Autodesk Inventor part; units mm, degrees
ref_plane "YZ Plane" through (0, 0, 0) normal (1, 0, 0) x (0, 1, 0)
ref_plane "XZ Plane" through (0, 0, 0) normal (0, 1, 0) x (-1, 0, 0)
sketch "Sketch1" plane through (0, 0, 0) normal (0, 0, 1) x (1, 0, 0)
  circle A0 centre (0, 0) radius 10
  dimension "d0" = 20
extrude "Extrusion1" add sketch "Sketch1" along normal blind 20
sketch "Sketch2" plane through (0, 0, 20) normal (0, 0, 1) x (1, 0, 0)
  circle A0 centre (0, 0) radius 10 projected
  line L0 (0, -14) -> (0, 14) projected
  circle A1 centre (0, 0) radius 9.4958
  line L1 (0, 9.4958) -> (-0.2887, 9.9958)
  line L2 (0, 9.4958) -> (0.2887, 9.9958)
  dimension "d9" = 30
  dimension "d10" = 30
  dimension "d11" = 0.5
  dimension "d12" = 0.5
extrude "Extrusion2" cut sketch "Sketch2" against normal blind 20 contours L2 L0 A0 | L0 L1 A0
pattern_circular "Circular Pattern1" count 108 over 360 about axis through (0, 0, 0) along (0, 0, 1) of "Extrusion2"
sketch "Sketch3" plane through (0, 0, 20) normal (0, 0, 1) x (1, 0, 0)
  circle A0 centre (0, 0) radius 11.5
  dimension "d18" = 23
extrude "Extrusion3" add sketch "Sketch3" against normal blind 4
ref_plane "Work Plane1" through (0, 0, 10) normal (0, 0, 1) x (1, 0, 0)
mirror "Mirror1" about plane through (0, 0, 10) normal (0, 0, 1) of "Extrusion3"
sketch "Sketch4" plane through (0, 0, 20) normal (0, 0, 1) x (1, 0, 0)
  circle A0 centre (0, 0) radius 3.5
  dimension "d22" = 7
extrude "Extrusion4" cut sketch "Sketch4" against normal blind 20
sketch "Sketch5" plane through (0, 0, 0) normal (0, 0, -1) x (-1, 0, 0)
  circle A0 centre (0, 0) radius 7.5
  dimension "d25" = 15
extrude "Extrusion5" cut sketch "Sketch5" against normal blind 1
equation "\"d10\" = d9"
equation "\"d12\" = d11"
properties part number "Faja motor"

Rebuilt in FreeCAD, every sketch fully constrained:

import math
import FreeCAD as App
import Part
import Sketcher

V = App.Vector

doc = App.newDocument("Part")
body = doc.addObject("PartDesign::Body", "Body")

# Sketch on XY plane
sketch1 = body.newObject("Sketcher::SketchObject", "Sketch")
sketch1.AttachmentSupport = (doc.getObject("XY_Plane"), [""])
sketch1.MapMode = "FlatFace"
sketch1.addGeometry(Part.Circle(V(0, 0, 0), V(0, 0, 1), 10), False)
sketch1.addConstraint(Sketcher.Constraint("Coincident", 0, 3, -1, 1))
sketch1.addConstraint(Sketcher.Constraint("Diameter", 0, 20.0))
pad1 = body.newObject("PartDesign::Pad", "Pad")
pad1.Profile = sketch1
pad1.Length = 20

# Sketch on XY plane
sketch2 = body.newObject("Sketcher::SketchObject", "Sketch001")
sketch2.AttachmentSupport = (doc.getObject("XY_Plane"), [""])
sketch2.MapMode = "FlatFace"
sketch2.AttachmentOffset = App.Placement(V(0, 0, 20), App.Rotation())
sketch2.addGeometry(Part.LineSegment(V(0, 9.5, 0), V(0.3, 10, 0)), False)
sketch2.addGeometry(Part.ArcOfCircle(Part.Circle(V(0, 0, 0), V(0, 0, 1), 10), math.radians(88.35), math.radians(91.65)), False)
sketch2.addGeometry(Part.LineSegment(V(-0.3, 10, 0), V(0, 9.5, 0)), False)
sketch2.addConstraint(Sketcher.Constraint("Coincident", 0, 2, 1, 1))
sketch2.addConstraint(Sketcher.Constraint("Coincident", 1, 2, 2, 1))
sketch2.addConstraint(Sketcher.Constraint("Coincident", 2, 2, 0, 1))
sketch2.addConstraint(Sketcher.Constraint("Coincident", 1, 3, -1, 1))
sketch2.addConstraint(Sketcher.Constraint("PointOnObject", 2, 2, -2))
sketch2.addConstraint(Sketcher.Constraint("Horizontal", 0, 2, 1, 2))
sketch2.addConstraint(Sketcher.Constraint("Radius", 1, 10.0))
sketch2.addConstraint(Sketcher.Constraint("DistanceY", 2, 2, 0, 2, 0.5))
sketch2.addConstraint(Sketcher.Constraint("Distance", 0, 0.5774))
pocket1 = body.newObject("PartDesign::Pocket", "Pocket")
pocket1.Profile = sketch2
pocket1.Length = 20
doc.recompute()

polarpattern = body.newObject("PartDesign::PolarPattern", "PolarPattern")
polarpattern.Originals = [pocket1]
polarpattern.Axis = (doc.getObject("Z_Axis"), [""])
polarpattern.Angle = 360
polarpattern.Occurrences = 108
body.Tip = polarpattern

# Sketch on XY plane
sketch3 = body.newObject("Sketcher::SketchObject", "Sketch002")
sketch3.AttachmentSupport = (doc.getObject("XY_Plane"), [""])
sketch3.MapMode = "FlatFace"
sketch3.AttachmentOffset = App.Placement(V(0, 0, 20), App.Rotation())
sketch3.addGeometry(Part.Circle(V(0, 0, 0), V(0, 0, 1), 12), False)
sketch3.addConstraint(Sketcher.Constraint("Coincident", 0, 3, -1, 1))
sketch3.addConstraint(Sketcher.Constraint("Diameter", 0, 23.0))
pad2 = body.newObject("PartDesign::Pad", "Pad001")
pad2.Profile = sketch3
pad2.Length = 4
pad2.Reversed = True
doc.recompute()

datumplane = body.newObject("PartDesign::Plane", "DatumPlane")
datumplane.AttachmentSupport = (doc.getObject("XY_Plane"), [""])
datumplane.MapMode = "FlatFace"
datumplane.AttachmentOffset = App.Placement(V(0, 0, 10), App.Rotation())
mirrored = body.newObject("PartDesign::Mirrored", "Mirrored")
mirrored.Originals = [pad2]
mirrored.MirrorPlane = (datumplane, [""])
body.Tip = mirrored

# Sketch on XY plane
sketch4 = body.newObject("Sketcher::SketchObject", "Sketch003")
sketch4.AttachmentSupport = (doc.getObject("XY_Plane"), [""])
sketch4.MapMode = "FlatFace"
sketch4.AttachmentOffset = App.Placement(V(0, 0, 20), App.Rotation())
sketch4.addGeometry(Part.Circle(V(0, 0, 0), V(0, 0, 1), 3.5), False)
sketch4.addConstraint(Sketcher.Constraint("Coincident", 0, 3, -1, 1))
sketch4.addConstraint(Sketcher.Constraint("Diameter", 0, 7.0))
pocket2 = body.newObject("PartDesign::Pocket", "Pocket001")
pocket2.Profile = sketch4
pocket2.Length = 20

# Sketch on XY plane
sketch5 = body.newObject("Sketcher::SketchObject", "Sketch004")
sketch5.AttachmentSupport = (doc.getObject("XY_Plane"), [""])
sketch5.MapMode = "FlatFace"
sketch5.addGeometry(Part.Circle(V(0, 0, 0), V(0, 0, 1), 8), False)
sketch5.addConstraint(Sketcher.Constraint("Coincident", 0, 3, -1, 1))
sketch5.addConstraint(Sketcher.Constraint("Diameter", 0, 15.0))
pocket3 = body.newObject("PartDesign::Pocket", "Pocket002")
pocket3.Profile = sketch5
pocket3.Length = 1
pocket3.Reversed = True

doc.recompute()
